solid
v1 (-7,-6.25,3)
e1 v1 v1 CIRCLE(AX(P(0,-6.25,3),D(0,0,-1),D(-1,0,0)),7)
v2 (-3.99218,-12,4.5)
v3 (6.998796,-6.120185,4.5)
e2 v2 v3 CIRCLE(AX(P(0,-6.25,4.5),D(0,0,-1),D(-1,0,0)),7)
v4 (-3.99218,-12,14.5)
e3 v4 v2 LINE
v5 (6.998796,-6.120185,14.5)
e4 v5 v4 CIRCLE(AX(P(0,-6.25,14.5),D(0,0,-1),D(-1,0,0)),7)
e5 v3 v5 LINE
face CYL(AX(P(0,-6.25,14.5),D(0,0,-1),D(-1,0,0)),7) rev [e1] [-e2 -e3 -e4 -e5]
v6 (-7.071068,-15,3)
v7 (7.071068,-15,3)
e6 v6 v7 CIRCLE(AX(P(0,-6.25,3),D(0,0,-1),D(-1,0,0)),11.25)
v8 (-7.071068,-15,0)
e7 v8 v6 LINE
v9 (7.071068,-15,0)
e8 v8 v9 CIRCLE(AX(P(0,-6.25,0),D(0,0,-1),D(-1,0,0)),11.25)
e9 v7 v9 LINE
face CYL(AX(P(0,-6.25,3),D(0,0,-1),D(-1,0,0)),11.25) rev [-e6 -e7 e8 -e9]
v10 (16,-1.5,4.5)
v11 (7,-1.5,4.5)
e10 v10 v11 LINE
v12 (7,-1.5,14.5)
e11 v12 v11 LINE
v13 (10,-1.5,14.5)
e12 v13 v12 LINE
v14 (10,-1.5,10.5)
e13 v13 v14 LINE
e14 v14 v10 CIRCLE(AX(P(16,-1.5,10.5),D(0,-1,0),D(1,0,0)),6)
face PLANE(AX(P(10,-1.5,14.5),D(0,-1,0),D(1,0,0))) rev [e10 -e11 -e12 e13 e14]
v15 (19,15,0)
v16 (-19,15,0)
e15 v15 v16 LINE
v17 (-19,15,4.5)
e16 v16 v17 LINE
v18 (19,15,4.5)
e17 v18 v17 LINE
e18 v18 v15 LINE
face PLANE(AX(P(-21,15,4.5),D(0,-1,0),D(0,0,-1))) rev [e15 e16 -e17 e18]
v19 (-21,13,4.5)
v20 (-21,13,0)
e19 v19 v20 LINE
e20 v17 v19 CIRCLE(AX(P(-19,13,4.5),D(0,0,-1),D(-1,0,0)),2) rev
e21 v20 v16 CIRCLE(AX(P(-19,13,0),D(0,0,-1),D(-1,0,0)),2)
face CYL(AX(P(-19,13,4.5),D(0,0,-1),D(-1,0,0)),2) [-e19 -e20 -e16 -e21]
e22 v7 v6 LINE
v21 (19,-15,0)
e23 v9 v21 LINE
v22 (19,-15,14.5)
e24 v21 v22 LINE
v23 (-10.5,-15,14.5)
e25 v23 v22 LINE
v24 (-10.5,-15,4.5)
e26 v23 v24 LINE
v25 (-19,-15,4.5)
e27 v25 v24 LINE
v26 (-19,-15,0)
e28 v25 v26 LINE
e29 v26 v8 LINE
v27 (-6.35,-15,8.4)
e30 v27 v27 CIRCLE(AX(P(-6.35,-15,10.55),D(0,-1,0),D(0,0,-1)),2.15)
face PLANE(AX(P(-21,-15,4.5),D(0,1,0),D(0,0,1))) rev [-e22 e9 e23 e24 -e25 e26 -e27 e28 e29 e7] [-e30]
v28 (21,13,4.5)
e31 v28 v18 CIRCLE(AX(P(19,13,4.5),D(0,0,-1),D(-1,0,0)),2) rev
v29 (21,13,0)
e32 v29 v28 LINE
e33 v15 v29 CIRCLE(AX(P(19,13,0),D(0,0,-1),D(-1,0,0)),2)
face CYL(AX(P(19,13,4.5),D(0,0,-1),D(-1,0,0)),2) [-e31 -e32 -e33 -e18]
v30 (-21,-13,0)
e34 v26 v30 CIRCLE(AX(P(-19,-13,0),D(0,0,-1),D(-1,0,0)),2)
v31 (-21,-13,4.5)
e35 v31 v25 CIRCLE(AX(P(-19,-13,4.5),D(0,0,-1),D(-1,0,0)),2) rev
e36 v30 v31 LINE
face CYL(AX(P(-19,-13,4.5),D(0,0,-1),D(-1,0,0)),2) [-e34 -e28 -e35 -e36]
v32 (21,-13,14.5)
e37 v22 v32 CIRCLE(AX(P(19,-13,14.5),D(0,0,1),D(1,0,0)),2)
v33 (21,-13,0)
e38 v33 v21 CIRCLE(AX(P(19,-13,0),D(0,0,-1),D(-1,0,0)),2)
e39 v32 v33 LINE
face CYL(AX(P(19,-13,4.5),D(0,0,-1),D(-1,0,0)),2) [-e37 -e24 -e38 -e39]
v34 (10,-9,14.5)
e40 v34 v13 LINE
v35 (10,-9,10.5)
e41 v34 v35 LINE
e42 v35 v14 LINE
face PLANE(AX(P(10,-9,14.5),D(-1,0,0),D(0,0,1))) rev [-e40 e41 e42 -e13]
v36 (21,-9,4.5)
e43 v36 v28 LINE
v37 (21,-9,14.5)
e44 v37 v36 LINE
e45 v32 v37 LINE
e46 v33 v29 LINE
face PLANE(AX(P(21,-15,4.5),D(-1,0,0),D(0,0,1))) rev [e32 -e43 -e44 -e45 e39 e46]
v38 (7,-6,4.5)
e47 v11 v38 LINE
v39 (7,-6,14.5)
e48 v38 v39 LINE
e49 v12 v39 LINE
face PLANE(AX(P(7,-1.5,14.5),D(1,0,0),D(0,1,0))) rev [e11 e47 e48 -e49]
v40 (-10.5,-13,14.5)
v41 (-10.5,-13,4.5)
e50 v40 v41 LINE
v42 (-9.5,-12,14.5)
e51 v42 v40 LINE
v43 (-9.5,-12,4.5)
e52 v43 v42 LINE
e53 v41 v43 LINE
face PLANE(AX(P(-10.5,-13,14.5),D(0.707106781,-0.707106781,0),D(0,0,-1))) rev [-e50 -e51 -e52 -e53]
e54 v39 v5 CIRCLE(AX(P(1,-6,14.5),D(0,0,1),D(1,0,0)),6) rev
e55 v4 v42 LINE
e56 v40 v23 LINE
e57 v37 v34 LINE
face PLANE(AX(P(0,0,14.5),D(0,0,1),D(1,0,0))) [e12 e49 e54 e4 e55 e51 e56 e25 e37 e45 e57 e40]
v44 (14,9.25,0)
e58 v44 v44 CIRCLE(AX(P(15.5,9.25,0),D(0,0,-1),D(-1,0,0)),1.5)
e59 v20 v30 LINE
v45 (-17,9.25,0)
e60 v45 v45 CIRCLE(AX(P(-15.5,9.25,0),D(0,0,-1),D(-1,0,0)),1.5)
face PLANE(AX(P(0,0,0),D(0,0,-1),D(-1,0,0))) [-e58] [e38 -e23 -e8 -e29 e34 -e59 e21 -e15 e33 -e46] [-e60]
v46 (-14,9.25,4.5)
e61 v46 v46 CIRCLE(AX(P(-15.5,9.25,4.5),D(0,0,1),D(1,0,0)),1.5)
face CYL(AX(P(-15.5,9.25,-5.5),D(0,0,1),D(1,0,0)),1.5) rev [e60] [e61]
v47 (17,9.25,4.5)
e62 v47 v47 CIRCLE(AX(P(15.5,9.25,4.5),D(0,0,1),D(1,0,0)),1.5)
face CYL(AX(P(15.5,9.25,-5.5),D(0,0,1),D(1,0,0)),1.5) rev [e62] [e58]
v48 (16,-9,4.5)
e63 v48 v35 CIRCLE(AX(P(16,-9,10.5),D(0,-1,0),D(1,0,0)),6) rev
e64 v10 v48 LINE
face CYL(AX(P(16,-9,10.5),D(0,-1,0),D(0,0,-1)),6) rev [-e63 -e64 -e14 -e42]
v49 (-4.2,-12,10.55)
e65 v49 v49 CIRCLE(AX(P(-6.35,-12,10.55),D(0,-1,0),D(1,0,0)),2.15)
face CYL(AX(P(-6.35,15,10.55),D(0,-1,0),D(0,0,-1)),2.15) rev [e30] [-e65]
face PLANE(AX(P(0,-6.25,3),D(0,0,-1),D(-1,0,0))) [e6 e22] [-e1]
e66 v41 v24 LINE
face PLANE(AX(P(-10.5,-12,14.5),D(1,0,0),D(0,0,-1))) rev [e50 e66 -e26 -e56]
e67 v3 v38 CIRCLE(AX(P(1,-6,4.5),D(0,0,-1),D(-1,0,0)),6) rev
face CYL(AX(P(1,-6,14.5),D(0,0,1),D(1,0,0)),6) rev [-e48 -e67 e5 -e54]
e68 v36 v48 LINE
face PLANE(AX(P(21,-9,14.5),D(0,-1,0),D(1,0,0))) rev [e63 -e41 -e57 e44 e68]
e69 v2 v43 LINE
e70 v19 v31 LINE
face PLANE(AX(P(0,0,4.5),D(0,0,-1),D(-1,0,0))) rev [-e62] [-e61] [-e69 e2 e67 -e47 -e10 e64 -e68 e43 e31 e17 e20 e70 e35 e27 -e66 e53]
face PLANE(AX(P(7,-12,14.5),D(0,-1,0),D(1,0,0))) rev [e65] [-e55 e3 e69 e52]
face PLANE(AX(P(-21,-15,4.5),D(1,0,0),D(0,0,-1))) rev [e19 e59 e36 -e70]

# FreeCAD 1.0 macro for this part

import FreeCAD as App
import Part
import Sketcher

V = App.Vector
Q = App.Units.Quantity


def edges_at(feature, points):
    """Names of the edges that pass closest to the given points."""
    edges = feature.Shape.Edges
    near = lambda p: min(range(len(edges)), key=lambda i: edges[i].distToShape(Part.Vertex(*p))[0])
    return sorted({f"Edge{near(p) + 1}" for p in points})

doc = App.newDocument("Part")
body = doc.addObject("PartDesign::Body", "Body")

# Sketch on XY plane
sketch1 = body.newObject("Sketcher::SketchObject", "Sketch")
sketch1.AttachmentSupport = (doc.getObject("XY_Plane"), [""])
sketch1.MapMode = "FlatFace"
sketch1.addGeometry(Part.LineSegment(V(-21, 15, 0), V(-21, -15, 0)), False)
sketch1.addGeometry(Part.LineSegment(V(-21, -15, 0), V(21, -15, 0)), False)
sketch1.addGeometry(Part.LineSegment(V(21, -15, 0), V(21, 15, 0)), False)
sketch1.addGeometry(Part.LineSegment(V(21, 15, 0), V(-21, 15, 0)), False)
sketch1.addConstraint(Sketcher.Constraint("Coincident", 0, 2, 1, 1))
sketch1.addConstraint(Sketcher.Constraint("Coincident", 1, 2, 2, 1))
sketch1.addConstraint(Sketcher.Constraint("Coincident", 2, 2, 3, 1))
sketch1.addConstraint(Sketcher.Constraint("Coincident", 3, 2, 0, 1))
sketch1.addConstraint(Sketcher.Constraint("Vertical", 0))
sketch1.addConstraint(Sketcher.Constraint("Horizontal", 1))
sketch1.addConstraint(Sketcher.Constraint("Vertical", 2))
sketch1.addConstraint(Sketcher.Constraint("Horizontal", 3))
sketch1.addConstraint(Sketcher.Constraint("Symmetric", 0, 2, 2, 2, -1, 1))
sketch1.addConstraint(Sketcher.Constraint("DistanceX", 1, 1, 1, 2, Q("42 mm")))
sketch1.addConstraint(Sketcher.Constraint("DistanceY", 0, 2, 0, 1, Q("30 mm")))
pad1 = body.newObject("PartDesign::Pad", "Pad")
pad1.Profile = sketch1
pad1.Length = 4.5

# Sketch on XY plane
sketch2 = body.newObject("Sketcher::SketchObject", "Sketch001")
sketch2.AttachmentSupport = (doc.getObject("XY_Plane"), [""])
sketch2.MapMode = "FlatFace"
sketch2.AttachmentOffset = App.Placement(V(0, 0, 4.5), App.Rotation())
sketch2.addGeometry(Part.LineSegment(V(21, -9, 0), V(10, -9, 0)), False)
sketch2.addGeometry(Part.LineSegment(V(10, -9, 0), V(10, -1.5, 0)), False)
sketch2.addGeometry(Part.LineSegment(V(10, -1.5, 0), V(7, -1.5, 0)), False)
sketch2.addGeometry(Part.LineSegment(V(7, -1.5, 0), V(7, -12, 0)), False)
sketch2.addGeometry(Part.LineSegment(V(7, -12, 0), V(-10.5, -12, 0)), False)
sketch2.addGeometry(Part.LineSegment(V(-10.5, -12, 0), V(-10.5, -15, 0)), False)
sketch2.addGeometry(Part.LineSegment(V(-10.5, -15, 0), V(21, -15, 0)), False)
sketch2.addGeometry(Part.LineSegment(V(21, -15, 0), V(21, -9, 0)), False)
sketch2.addConstraint(Sketcher.Constraint("Coincident", 0, 2, 1, 1))
sketch2.addConstraint(Sketcher.Constraint("Coincident", 1, 2, 2, 1))
sketch2.addConstraint(Sketcher.Constraint("Coincident", 2, 2, 3, 1))
sketch2.addConstraint(Sketcher.Constraint("Coincident", 3, 2, 4, 1))
sketch2.addConstraint(Sketcher.Constraint("Coincident", 4, 2, 5, 1))
sketch2.addConstraint(Sketcher.Constraint("Coincident", 5, 2, 6, 1))
sketch2.addConstraint(Sketcher.Constraint("Coincident", 6, 2, 7, 1))
sketch2.addConstraint(Sketcher.Constraint("Coincident", 7, 2, 0, 1))
sketch2.addConstraint(Sketcher.Constraint("Horizontal", 0))
sketch2.addConstraint(Sketcher.Constraint("Vertical", 1))
sketch2.addConstraint(Sketcher.Constraint("Horizontal", 2))
sketch2.addConstraint(Sketcher.Constraint("Vertical", 3))
sketch2.addConstraint(Sketcher.Constraint("Horizontal", 4))
sketch2.addConstraint(Sketcher.Constraint("Vertical", 5))
sketch2.addConstraint(Sketcher.Constraint("Horizontal", 6))
sketch2.addConstraint(Sketcher.Constraint("Vertical", 7))
sketch2.addConstraint(Sketcher.Constraint("Equal", 2, 5))
sketch2.addConstraint(Sketcher.Constraint("DistanceX", 0, 2, 0, 1, Q("11 mm")))
sketch2.addConstraint(Sketcher.Constraint("DistanceX", 2, 2, 2, 1, Q("3 mm")))
sketch2.addConstraint(Sketcher.Constraint("DistanceY", 7, 1, 7, 2, Q("6 mm")))
sketch2.addConstraint(Sketcher.Constraint("DistanceX", 4, 2, 4, 1, Q("17.5 mm")))
sketch2.addConstraint(Sketcher.Constraint("DistanceY", 1, 1, 1, 2, Q("7.5 mm")))
sketch2.addConstraint(Sketcher.Constraint("DistanceX", -1, 1, 0, 2, Q("10 mm")))
sketch2.addConstraint(Sketcher.Constraint("DistanceY", 0, 2, -1, 1, Q("9 mm")))
pad2 = body.newObject("PartDesign::Pad", "Pad001")
pad2.Profile = sketch2
pad2.Length = 10
doc.recompute()

fillet = body.newObject("PartDesign::Fillet", "Fillet")
fillet.Base = (pad2, edges_at(pad2, [(10, -5.25, 4.5), (7, -12, 9.5)]))
fillet.Radius = 6

# Sketch on XY plane
sketch3 = body.newObject("Sketcher::SketchObject", "Sketch002")
sketch3.AttachmentSupport = (doc.getObject("XY_Plane"), [""])
sketch3.MapMode = "FlatFace"
sketch3.addGeometry(Part.Circle(V(0, -6.25, 0), V(0, 0, 1), 11.25), False)
sketch3.addConstraint(Sketcher.Constraint("PointOnObject", 0, 3, -2))
sketch3.addConstraint(Sketcher.Constraint("Diameter", 0, Q("22.5 mm")))
sketch3.addConstraint(Sketcher.Constraint("DistanceY", 0, 3, -1, 1, Q("6.25 mm")))
pocket1 = body.newObject("PartDesign::Pocket", "Pocket")
pocket1.Profile = sketch3
pocket1.Length = 3
pocket1.Reversed = True

# Sketch on XY plane
sketch4 = body.newObject("Sketcher::SketchObject", "Sketch003")
sketch4.AttachmentSupport = (doc.getObject("XY_Plane"), [""])
sketch4.MapMode = "FlatFace"
sketch4.AttachmentOffset = App.Placement(V(0, 0, 3), App.Rotation())
sketch4.addGeometry(Part.Circle(V(0, -6.25, 0), V(0, 0, 1), 7), False)
sketch4.addConstraint(Sketcher.Constraint("PointOnObject", 0, 3, -2))
sketch4.addConstraint(Sketcher.Constraint("Diameter", 0, Q("14 mm")))
sketch4.addConstraint(Sketcher.Constraint("DistanceY", 0, 3, -1, 1, Q("6.25 mm")))
pocket2 = body.newObject("PartDesign::Pocket", "Pocket001")
pocket2.Profile = sketch4
pocket2.Type = "ThroughAll"
pocket2.Midplane = True
doc.recompute()

fillet2 = body.newObject("PartDesign::Fillet", "Fillet001")
fillet2.Base = (pocket2, edges_at(pocket2, [
    (21, -15, 7.25),
    (-21, -15, 2.25),
    (-21, 15, 2.25),
    (21, 15, 2.25),
]))
fillet2.Radius = 2
doc.recompute()

chamfer = body.newObject("PartDesign::Chamfer", "Chamfer")
chamfer.Base = (fillet2, edges_at(fillet2, [(-10.5, -12, 9.5)]))
chamfer.Size = 1

# Sketch on XZ plane
sketch5 = body.newObject("Sketcher::SketchObject", "Sketch004")
sketch5.AttachmentSupport = (doc.getObject("XZ_Plane"), [""])
sketch5.MapMode = "FlatFace"
sketch5.AttachmentOffset = App.Placement(V(0, 0, 15), App.Rotation())
sketch5.addGeometry(Part.Circle(V(-6.35, 10.55, 0), V(0, 0, 1), 2.15), False)
sketch5.addConstraint(Sketcher.Constraint("Diameter", 0, Q("4.3 mm")))
sketch5.addConstraint(Sketcher.Constraint("DistanceX", 0, 3, -1, 1, Q("6.35 mm")))
sketch5.addConstraint(Sketcher.Constraint("DistanceY", -1, 1, 0, 3, Q("10.55 mm")))
pocket3 = body.newObject("PartDesign::Pocket", "Pocket002")
pocket3.Profile = sketch5
pocket3.Type = "ThroughAll"

# Sketch on XY plane
sketch6 = body.newObject("Sketcher::SketchObject", "Sketch005")
sketch6.AttachmentSupport = (doc.getObject("XY_Plane"), [""])
sketch6.MapMode = "FlatFace"
sketch6.AttachmentOffset = App.Placement(V(0, 0, 4.5), App.Rotation())
sketch6.addGeometry(Part.Circle(V(-15.5, 9.25, 0), V(0, 0, 1), 1.5), False)
sketch6.addGeometry(Part.Circle(V(15.5, 9.25, 0), V(0, 0, 1), 1.5), False)
sketch6.addConstraint(Sketcher.Constraint("Equal", 0, 1))
sketch6.addConstraint(Sketcher.Constraint("Symmetric", 0, 3, 1, 3, -2))
sketch6.addConstraint(Sketcher.Constraint("Diameter", 0, Q("3 mm")))
sketch6.addConstraint(Sketcher.Constraint("DistanceX", 0, 3, 1, 3, Q("31 mm")))
sketch6.addConstraint(Sketcher.Constraint("DistanceY", -1, 1, 0, 3, Q("9.25 mm")))
pocket4 = body.newObject("PartDesign::Pocket", "Pocket003")
pocket4.Profile = sketch6
pocket4.Length = 10

doc.recompute()
